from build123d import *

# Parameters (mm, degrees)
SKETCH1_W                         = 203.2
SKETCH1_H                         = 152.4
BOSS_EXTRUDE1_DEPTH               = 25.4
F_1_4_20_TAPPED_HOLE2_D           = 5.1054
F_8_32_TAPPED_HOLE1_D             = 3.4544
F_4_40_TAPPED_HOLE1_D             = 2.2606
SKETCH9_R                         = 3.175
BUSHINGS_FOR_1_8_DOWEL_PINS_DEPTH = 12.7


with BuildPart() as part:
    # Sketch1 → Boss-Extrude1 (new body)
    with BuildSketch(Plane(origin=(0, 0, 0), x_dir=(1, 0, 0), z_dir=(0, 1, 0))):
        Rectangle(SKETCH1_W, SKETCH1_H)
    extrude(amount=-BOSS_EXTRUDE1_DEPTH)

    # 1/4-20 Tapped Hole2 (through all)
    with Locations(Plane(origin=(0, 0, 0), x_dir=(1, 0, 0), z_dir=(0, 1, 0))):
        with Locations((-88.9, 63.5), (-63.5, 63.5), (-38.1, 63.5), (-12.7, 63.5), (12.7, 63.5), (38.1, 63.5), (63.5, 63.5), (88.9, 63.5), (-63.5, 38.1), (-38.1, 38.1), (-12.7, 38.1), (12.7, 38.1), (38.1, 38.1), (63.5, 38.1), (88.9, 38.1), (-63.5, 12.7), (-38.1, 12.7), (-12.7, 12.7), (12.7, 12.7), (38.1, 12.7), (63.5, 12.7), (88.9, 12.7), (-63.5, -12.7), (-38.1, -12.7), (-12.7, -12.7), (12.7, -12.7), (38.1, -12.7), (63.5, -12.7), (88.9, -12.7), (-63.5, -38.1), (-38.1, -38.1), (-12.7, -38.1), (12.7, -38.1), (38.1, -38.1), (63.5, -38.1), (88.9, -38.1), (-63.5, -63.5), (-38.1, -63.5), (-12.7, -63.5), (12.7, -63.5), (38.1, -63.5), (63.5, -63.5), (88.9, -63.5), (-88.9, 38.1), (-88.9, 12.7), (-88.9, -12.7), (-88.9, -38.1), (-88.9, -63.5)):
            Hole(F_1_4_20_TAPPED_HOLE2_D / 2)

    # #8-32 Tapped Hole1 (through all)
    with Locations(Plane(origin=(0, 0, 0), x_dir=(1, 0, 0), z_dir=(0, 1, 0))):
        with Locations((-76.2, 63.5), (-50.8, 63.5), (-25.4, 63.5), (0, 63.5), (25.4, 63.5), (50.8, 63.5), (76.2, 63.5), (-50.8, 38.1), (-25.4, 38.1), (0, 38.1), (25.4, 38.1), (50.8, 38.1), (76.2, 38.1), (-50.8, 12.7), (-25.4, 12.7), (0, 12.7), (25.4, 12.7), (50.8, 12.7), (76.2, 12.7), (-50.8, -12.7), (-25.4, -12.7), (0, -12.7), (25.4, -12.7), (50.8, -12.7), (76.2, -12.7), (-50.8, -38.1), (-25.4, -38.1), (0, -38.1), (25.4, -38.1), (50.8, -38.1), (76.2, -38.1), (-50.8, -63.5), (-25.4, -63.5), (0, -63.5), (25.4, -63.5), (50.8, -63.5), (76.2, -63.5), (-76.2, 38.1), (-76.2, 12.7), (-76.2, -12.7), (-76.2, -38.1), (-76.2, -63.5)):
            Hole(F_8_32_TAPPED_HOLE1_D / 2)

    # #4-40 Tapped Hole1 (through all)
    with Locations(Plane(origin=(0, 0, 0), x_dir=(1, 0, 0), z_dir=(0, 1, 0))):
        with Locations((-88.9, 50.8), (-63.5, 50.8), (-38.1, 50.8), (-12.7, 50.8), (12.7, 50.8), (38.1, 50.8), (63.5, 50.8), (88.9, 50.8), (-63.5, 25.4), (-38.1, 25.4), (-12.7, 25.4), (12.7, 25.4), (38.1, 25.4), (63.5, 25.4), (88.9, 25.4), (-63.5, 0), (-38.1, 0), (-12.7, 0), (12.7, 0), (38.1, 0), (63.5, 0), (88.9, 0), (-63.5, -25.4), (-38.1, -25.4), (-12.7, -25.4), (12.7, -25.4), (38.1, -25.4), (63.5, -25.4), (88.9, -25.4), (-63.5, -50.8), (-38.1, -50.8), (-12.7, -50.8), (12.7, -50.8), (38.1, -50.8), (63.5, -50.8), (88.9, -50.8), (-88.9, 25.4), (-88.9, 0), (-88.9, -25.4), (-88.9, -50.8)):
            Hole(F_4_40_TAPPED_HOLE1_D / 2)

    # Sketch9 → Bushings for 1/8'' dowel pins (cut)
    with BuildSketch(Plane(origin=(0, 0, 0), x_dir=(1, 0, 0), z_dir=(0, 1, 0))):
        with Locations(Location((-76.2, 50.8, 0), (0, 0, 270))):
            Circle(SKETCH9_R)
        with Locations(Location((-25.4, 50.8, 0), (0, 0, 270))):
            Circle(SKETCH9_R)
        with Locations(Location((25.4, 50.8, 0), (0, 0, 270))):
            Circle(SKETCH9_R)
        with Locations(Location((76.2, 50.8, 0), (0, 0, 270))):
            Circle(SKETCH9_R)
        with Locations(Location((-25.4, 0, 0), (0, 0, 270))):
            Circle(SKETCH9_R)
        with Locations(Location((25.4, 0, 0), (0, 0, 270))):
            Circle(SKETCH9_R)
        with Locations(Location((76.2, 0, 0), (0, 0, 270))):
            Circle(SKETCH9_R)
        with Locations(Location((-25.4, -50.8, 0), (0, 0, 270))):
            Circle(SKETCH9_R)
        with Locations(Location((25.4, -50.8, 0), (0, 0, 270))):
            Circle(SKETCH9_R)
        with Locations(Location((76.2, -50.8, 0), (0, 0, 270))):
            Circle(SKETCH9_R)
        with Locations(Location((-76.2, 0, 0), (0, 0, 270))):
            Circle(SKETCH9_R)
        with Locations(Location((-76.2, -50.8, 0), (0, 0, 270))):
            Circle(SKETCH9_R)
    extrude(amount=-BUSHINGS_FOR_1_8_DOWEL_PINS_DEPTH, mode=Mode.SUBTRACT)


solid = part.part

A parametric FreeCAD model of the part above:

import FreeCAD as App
import Part
import Sketcher
from FreeCAD import Vector
Q = App.Units.Quantity


def add_polygon(sketch, points):
    """Adds a closed chain of lines whose ends are joined by coincident constraints."""
    first, n = sketch.GeometryCount, len(points)
    for a, b in zip(points, points[1:] + points[:1]):
        sketch.addGeometry(Part.LineSegment(App.Vector(*a, 0), App.Vector(*b, 0)), False)
    for i in range(n):
        sketch.addConstraint(Sketcher.Constraint("Coincident", first + i, 2, first + (i + 1) % n, 1))

doc = App.newDocument("Part")
body = doc.addObject("PartDesign::Body", "Body")

# Sketch on XZ plane
sketch1 = body.newObject("Sketcher::SketchObject", "Sketch")
sketch1.AttachmentSupport = (doc.getObject("XZ_Plane"), [""])
sketch1.MapMode = "FlatFace"
add_polygon(sketch1, [(-102, -76), (-102, 76), (102, 76), (102, -76)])  # lines 0-3
sketch1.addConstraint([
    Sketcher.Constraint("Vertical", 0),
    Sketcher.Constraint("Horizontal", 1),
    Sketcher.Constraint("Vertical", 2),
    Sketcher.Constraint("Horizontal", 3),
    Sketcher.Constraint("Symmetric", 0, 2, 2, 2, -1, 1),
    Sketcher.Constraint("DistanceX", 1, 1, 1, 2, Q("8 in")),
    Sketcher.Constraint("DistanceY", 0, 1, 0, 2, Q("6 in")),
])
pad1 = body.newObject("PartDesign::Pad", "Pad")
pad1.Profile = sketch1
pad1.Length = Q("1 in")

# Sketch on XZ plane
sketch2 = body.newObject("Sketcher::SketchObject", "Sketch001")
sketch2.AttachmentSupport = (doc.getObject("XZ_Plane"), [""])
sketch2.MapMode = "FlatFace"
sketch2.addGeometry([
    Part.Circle(Vector(-88.9, -63.5, 0), Vector(0, 0, 1), 2.6),  # 0
    Part.Circle(Vector(-63.5, -63.5, 0), Vector(0, 0, 1), 2.6),  # 1
    Part.Circle(Vector(-38.1, -63.5, 0), Vector(0, 0, 1), 2.6),  # 2
    Part.Circle(Vector(-12.7, -63.5, 0), Vector(0, 0, 1), 2.6),  # 3
    Part.Circle(Vector(12.7, -63.5, 0), Vector(0, 0, 1), 2.6),  # 4
    Part.Circle(Vector(38.1, -63.5, 0), Vector(0, 0, 1), 2.6),  # 5
    Part.Circle(Vector(63.5, -63.5, 0), Vector(0, 0, 1), 2.6),  # 6
    Part.Circle(Vector(88.9, -63.5, 0), Vector(0, 0, 1), 2.6),  # 7
    Part.Circle(Vector(-63.5, -38.1, 0), Vector(0, 0, 1), 2.6),  # 8
    Part.Circle(Vector(-38.1, -38.1, 0), Vector(0, 0, 1), 2.6),  # 9
    Part.Circle(Vector(-12.7, -38.1, 0), Vector(0, 0, 1), 2.6),  # 10
    Part.Circle(Vector(12.7, -38.1, 0), Vector(0, 0, 1), 2.6),  # 11
    Part.Circle(Vector(38.1, -38.1, 0), Vector(0, 0, 1), 2.6),  # 12
    Part.Circle(Vector(63.5, -38.1, 0), Vector(0, 0, 1), 2.6),  # 13
    Part.Circle(Vector(88.9, -38.1, 0), Vector(0, 0, 1), 2.6),  # 14
    Part.Circle(Vector(-63.5, -12.7, 0), Vector(0, 0, 1), 2.6),  # 15
    Part.Circle(Vector(-38.1, -12.7, 0), Vector(0, 0, 1), 2.6),  # 16
    Part.Circle(Vector(-12.7, -12.7, 0), Vector(0, 0, 1), 2.6),  # 17
    Part.Circle(Vector(12.7, -12.7, 0), Vector(0, 0, 1), 2.6),  # 18
    Part.Circle(Vector(38.1, -12.7, 0), Vector(0, 0, 1), 2.6),  # 19
    Part.Circle(Vector(63.5, -12.7, 0), Vector(0, 0, 1), 2.6),  # 20
    Part.Circle(Vector(88.9, -12.7, 0), Vector(0, 0, 1), 2.6),  # 21
    Part.Circle(Vector(-63.5, 12.7, 0), Vector(0, 0, 1), 2.6),  # 22
    Part.Circle(Vector(-38.1, 12.7, 0), Vector(0, 0, 1), 2.6),  # 23
    Part.Circle(Vector(-12.7, 12.7, 0), Vector(0, 0, 1), 2.6),  # 24
    Part.Circle(Vector(12.7, 12.7, 0), Vector(0, 0, 1), 2.6),  # 25
    Part.Circle(Vector(38.1, 12.7, 0), Vector(0, 0, 1), 2.6),  # 26
    Part.Circle(Vector(63.5, 12.7, 0), Vector(0, 0, 1), 2.6),  # 27
    Part.Circle(Vector(88.9, 12.7, 0), Vector(0, 0, 1), 2.6),  # 28
    Part.Circle(Vector(-63.5, 38.1, 0), Vector(0, 0, 1), 2.6),  # 29
    Part.Circle(Vector(-38.1, 38.1, 0), Vector(0, 0, 1), 2.6),  # 30
    Part.Circle(Vector(-12.7, 38.1, 0), Vector(0, 0, 1), 2.6),  # 31
    Part.Circle(Vector(12.7, 38.1, 0), Vector(0, 0, 1), 2.6),  # 32
    Part.Circle(Vector(38.1, 38.1, 0), Vector(0, 0, 1), 2.6),  # 33
    Part.Circle(Vector(63.5, 38.1, 0), Vector(0, 0, 1), 2.6),  # 34
    Part.Circle(Vector(88.9, 38.1, 0), Vector(0, 0, 1), 2.6),  # 35
    Part.Circle(Vector(-63.5, 63.5, 0), Vector(0, 0, 1), 2.6),  # 36
    Part.Circle(Vector(-38.1, 63.5, 0), Vector(0, 0, 1), 2.6),  # 37
    Part.Circle(Vector(-12.7, 63.5, 0), Vector(0, 0, 1), 2.6),  # 38
    Part.Circle(Vector(12.7, 63.5, 0), Vector(0, 0, 1), 2.6),  # 39
    Part.Circle(Vector(38.1, 63.5, 0), Vector(0, 0, 1), 2.6),  # 40
    Part.Circle(Vector(63.5, 63.5, 0), Vector(0, 0, 1), 2.6),  # 41
    Part.Circle(Vector(88.9, 63.5, 0), Vector(0, 0, 1), 2.6),  # 42
    Part.Circle(Vector(-88.9, -38.1, 0), Vector(0, 0, 1), 2.6),  # 43
    Part.Circle(Vector(-88.9, -12.7, 0), Vector(0, 0, 1), 2.6),  # 44
    Part.Circle(Vector(-88.9, 12.7, 0), Vector(0, 0, 1), 2.6),  # 45
    Part.Circle(Vector(-88.9, 38.1, 0), Vector(0, 0, 1), 2.6),  # 46
    Part.Circle(Vector(-88.9, 63.5, 0), Vector(0, 0, 1), 2.6),  # 47
], False)
sketch2.addConstraint([
    Sketcher.Constraint("Equal", 0, 1),
    Sketcher.Constraint("Equal", 1, 2),
    Sketcher.Constraint("Equal", 2, 3),
    Sketcher.Constraint("Equal", 3, 4),
    Sketcher.Constraint("Equal", 4, 5),
    Sketcher.Constraint("Equal", 5, 6),
    Sketcher.Constraint("Equal", 6, 7),
    Sketcher.Constraint("Equal", 7, 8),
    Sketcher.Constraint("Equal", 8, 9),
    Sketcher.Constraint("Equal", 9, 10),
    Sketcher.Constraint("Equal", 10, 11),
    Sketcher.Constraint("Equal", 11, 12),
    Sketcher.Constraint("Equal", 12, 13),
    Sketcher.Constraint("Equal", 13, 14),
    Sketcher.Constraint("Equal", 14, 15),
    Sketcher.Constraint("Equal", 15, 16),
    Sketcher.Constraint("Equal", 16, 17),
    Sketcher.Constraint("Equal", 17, 18),
    Sketcher.Constraint("Equal", 18, 19),
    Sketcher.Constraint("Equal", 19, 20),
    Sketcher.Constraint("Equal", 20, 21),
    Sketcher.Constraint("Equal", 21, 22),
    Sketcher.Constraint("Equal", 22, 23),
    Sketcher.Constraint("Equal", 23, 24),
    Sketcher.Constraint("Equal", 24, 25),
    Sketcher.Constraint("Equal", 25, 26),
    Sketcher.Constraint("Equal", 26, 27),
    Sketcher.Constraint("Equal", 27, 28),
    Sketcher.Constraint("Equal", 28, 29),
    Sketcher.Constraint("Equal", 29, 30),
    Sketcher.Constraint("Equal", 30, 31),
    Sketcher.Constraint("Equal", 31, 32),
    Sketcher.Constraint("Equal", 32, 33),
    Sketcher.Constraint("Equal", 33, 34),
    Sketcher.Constraint("Equal", 34, 35),
    Sketcher.Constraint("Equal", 35, 36),
    Sketcher.Constraint("Equal", 36, 37),
    Sketcher.Constraint("Equal", 37, 38),
    Sketcher.Constraint("Equal", 38, 39),
    Sketcher.Constraint("Equal", 39, 40),
    Sketcher.Constraint("Equal", 40, 41),
    Sketcher.Constraint("Equal", 41, 42),
    Sketcher.Constraint("Equal", 42, 43),
    Sketcher.Constraint("Equal", 43, 44),
    Sketcher.Constraint("Equal", 44, 45),
    Sketcher.Constraint("Equal", 45, 46),
    Sketcher.Constraint("Equal", 46, 47),
    Sketcher.Constraint("Symmetric", 20, 3, 22, 3, -1, 1),
    Sketcher.Constraint("Symmetric", 19, 3, 23, 3, -1, 1),
    Sketcher.Constraint("Symmetric", 18, 3, 24, 3, -1, 1),
    Sketcher.Constraint("Symmetric", 17, 3, 25, 3, -1, 1),
    Sketcher.Constraint("Symmetric", 16, 3, 26, 3, -1, 1),
    Sketcher.Constraint("Symmetric", 15, 3, 27, 3, -1, 1),
    Sketcher.Constraint("Symmetric", 13, 3, 29, 3, -1, 1),
    Sketcher.Constraint("Symmetric", 12, 3, 30, 3, -1, 1),
    Sketcher.Constraint("Symmetric", 11, 3, 31, 3, -1, 1),
    Sketcher.Constraint("Symmetric", 10, 3, 32, 3, -1, 1),
    Sketcher.Constraint("Symmetric", 9, 3, 33, 3, -1, 1),
    Sketcher.Constraint("Symmetric", 8, 3, 34, 3, -1, 1),
    Sketcher.Constraint("Symmetric", 6, 3, 36, 3, -1, 1),
    Sketcher.Constraint("Symmetric", 5, 3, 37, 3, -1, 1),
    Sketcher.Constraint("Symmetric", 4, 3, 38, 3, -1, 1),
    Sketcher.Constraint("Symmetric", 3, 3, 39, 3, -1, 1),
    Sketcher.Constraint("Symmetric", 2, 3, 40, 3, -1, 1),
    Sketcher.Constraint("Symmetric", 1, 3, 41, 3, -1, 1),
    Sketcher.Constraint("Symmetric", 0, 3, 42, 3, -1, 1),
    Sketcher.Constraint("Symmetric", 35, 3, 43, 3, -1, 1),
    Sketcher.Constraint("Symmetric", 28, 3, 44, 3, -1, 1),
    Sketcher.Constraint("Symmetric", 21, 3, 45, 3, -1, 1),
    Sketcher.Constraint("Symmetric", 14, 3, 46, 3, -1, 1),
    Sketcher.Constraint("Symmetric", 7, 3, 47, 3, -1, 1),
    Sketcher.Constraint("Symmetric", 3, 3, 4, 3, -2),
    Sketcher.Constraint("Symmetric", 2, 3, 5, 3, -2),
    Sketcher.Constraint("Symmetric", 1, 3, 6, 3, -2),
    Sketcher.Constraint("Symmetric", 0, 3, 7, 3, -2),
    Sketcher.Constraint("Symmetric", 10, 3, 11, 3, -2),
    Sketcher.Constraint("Symmetric", 9, 3, 12, 3, -2),
    Sketcher.Constraint("Symmetric", 8, 3, 13, 3, -2),
    Sketcher.Constraint("Symmetric", 17, 3, 18, 3, -2),
    Sketcher.Constraint("Symmetric", 16, 3, 19, 3, -2),
    Sketcher.Constraint("Symmetric", 15, 3, 20, 3, -2),
    Sketcher.Constraint("Symmetric", 14, 3, 43, 3, -2),
    Sketcher.Constraint("Symmetric", 21, 3, 44, 3, -2),
    Sketcher.Constraint("Horizontal", 0, 3, 1, 3),
    Sketcher.Constraint("Horizontal", 1, 3, 2, 3),
    Sketcher.Constraint("Horizontal", 2, 3, 3, 3),
    Sketcher.Constraint("Horizontal", 8, 3, 9, 3),
    Sketcher.Constraint("Horizontal", 9, 3, 10, 3),
    Sketcher.Constraint("Horizontal", 13, 3, 14, 3),
    Sketcher.Constraint("Horizontal", 15, 3, 16, 3),
    Sketcher.Constraint("Horizontal", 16, 3, 17, 3),
    Sketcher.Constraint("Horizontal", 20, 3, 21, 3),
    Sketcher.Constraint("Vertical", 1, 3, 8, 3),
    Sketcher.Constraint("Vertical", 2, 3, 9, 3),
    Sketcher.Constraint("Vertical", 3, 3, 10, 3),
    Sketcher.Constraint("Vertical", 7, 3, 14, 3),
    Sketcher.Constraint("Vertical", 8, 3, 15, 3),
    Sketcher.Constraint("Vertical", 9, 3, 16, 3),
    Sketcher.Constraint("Vertical", 10, 3, 17, 3),
    Sketcher.Constraint("Vertical", 14, 3, 21, 3),
    Sketcher.Constraint("Diameter", 0, Q("0.201 in")),
    Sketcher.Constraint("DistanceX", 0, 3, 1, 3, Q("1 in")),
    Sketcher.Constraint("DistanceX", 1, 3, 2, 3, Q("1 in")),
    Sketcher.Constraint("DistanceX", 2, 3, 3, 3, Q("1 in")),
    Sketcher.Constraint("DistanceX", 3, 3, 4, 3, Q("1 in")),
    Sketcher.Constraint("DistanceY", 1, 3, 8, 3, Q("1 in")),
    Sketcher.Constraint("DistanceY", 8, 3, 15, 3, Q("1 in")),
    Sketcher.Constraint("DistanceY", 15, 3, 22, 3, Q("1 in")),
])
doc.recompute()
hole = body.newObject("PartDesign::Hole", "Hole")
hole.Profile = sketch2
hole.ThreadType = "None"
hole.Diameter = Q("0.201 in")
hole.DepthType = "ThroughAll"
hole.Reversed = True

# Sketch on XZ plane
sketch3 = body.newObject("Sketcher::SketchObject", "Sketch002")
sketch3.AttachmentSupport = (doc.getObject("XZ_Plane"), [""])
sketch3.MapMode = "FlatFace"
sketch3.addGeometry([
    Part.Circle(Vector(-76.2, -63.5, 0), Vector(0, 0, 1), 1.7),  # 0
    Part.Circle(Vector(-50.8, -63.5, 0), Vector(0, 0, 1), 1.7),  # 1
    Part.Circle(Vector(-25.4, -63.5, 0), Vector(0, 0, 1), 1.7),  # 2
    Part.Circle(Vector(0, -63.5, 0), Vector(0, 0, 1), 1.7),  # 3
    Part.Circle(Vector(25.4, -63.5, 0), Vector(0, 0, 1), 1.7),  # 4
    Part.Circle(Vector(50.8, -63.5, 0), Vector(0, 0, 1), 1.7),  # 5
    Part.Circle(Vector(76.2, -63.5, 0), Vector(0, 0, 1), 1.7),  # 6
    Part.Circle(Vector(-50.8, -38.1, 0), Vector(0, 0, 1), 1.7),  # 7
    Part.Circle(Vector(-25.4, -38.1, 0), Vector(0, 0, 1), 1.7),  # 8
    Part.Circle(Vector(0, -38.1, 0), Vector(0, 0, 1), 1.7),  # 9
    Part.Circle(Vector(25.4, -38.1, 0), Vector(0, 0, 1), 1.7),  # 10
    Part.Circle(Vector(50.8, -38.1, 0), Vector(0, 0, 1), 1.7),  # 11
    Part.Circle(Vector(76.2, -38.1, 0), Vector(0, 0, 1), 1.7),  # 12
    Part.Circle(Vector(-50.8, -12.7, 0), Vector(0, 0, 1), 1.7),  # 13
    Part.Circle(Vector(-25.4, -12.7, 0), Vector(0, 0, 1), 1.7),  # 14
    Part.Circle(Vector(0, -12.7, 0), Vector(0, 0, 1), 1.7),  # 15
    Part.Circle(Vector(25.4, -12.7, 0), Vector(0, 0, 1), 1.7),  # 16
    Part.Circle(Vector(50.8, -12.7, 0), Vector(0, 0, 1), 1.7),  # 17
    Part.Circle(Vector(76.2, -12.7, 0), Vector(0, 0, 1), 1.7),  # 18
    Part.Circle(Vector(-50.8, 12.7, 0), Vector(0, 0, 1), 1.7),  # 19
    Part.Circle(Vector(-25.4, 12.7, 0), Vector(0, 0, 1), 1.7),  # 20
    Part.Circle(Vector(0, 12.7, 0), Vector(0, 0, 1), 1.7),  # 21
    Part.Circle(Vector(25.4, 12.7, 0), Vector(0, 0, 1), 1.7),  # 22
    Part.Circle(Vector(50.8, 12.7, 0), Vector(0, 0, 1), 1.7),  # 23
    Part.Circle(Vector(76.2, 12.7, 0), Vector(0, 0, 1), 1.7),  # 24
    Part.Circle(Vector(-50.8, 38.1, 0), Vector(0, 0, 1), 1.7),  # 25
    Part.Circle(Vector(-25.4, 38.1, 0), Vector(0, 0, 1), 1.7),  # 26
    Part.Circle(Vector(0, 38.1, 0), Vector(0, 0, 1), 1.7),  # 27
    Part.Circle(Vector(25.4, 38.1, 0), Vector(0, 0, 1), 1.7),  # 28
    Part.Circle(Vector(50.8, 38.1, 0), Vector(0, 0, 1), 1.7),  # 29
    Part.Circle(Vector(76.2, 38.1, 0), Vector(0, 0, 1), 1.7),  # 30
    Part.Circle(Vector(-50.8, 63.5, 0), Vector(0, 0, 1), 1.7),  # 31
    Part.Circle(Vector(-25.4, 63.5, 0), Vector(0, 0, 1), 1.7),  # 32
    Part.Circle(Vector(0, 63.5, 0), Vector(0, 0, 1), 1.7),  # 33
    Part.Circle(Vector(25.4, 63.5, 0), Vector(0, 0, 1), 1.7),  # 34
    Part.Circle(Vector(50.8, 63.5, 0), Vector(0, 0, 1), 1.7),  # 35
    Part.Circle(Vector(76.2, 63.5, 0), Vector(0, 0, 1), 1.7),  # 36
    Part.Circle(Vector(-76.2, -38.1, 0), Vector(0, 0, 1), 1.7),  # 37
    Part.Circle(Vector(-76.2, -12.7, 0), Vector(0, 0, 1), 1.7),  # 38
    Part.Circle(Vector(-76.2, 12.7, 0), Vector(0, 0, 1), 1.7),  # 39
    Part.Circle(Vector(-76.2, 38.1, 0), Vector(0, 0, 1), 1.7),  # 40
    Part.Circle(Vector(-76.2, 63.5, 0), Vector(0, 0, 1), 1.7),  # 41
], False)
sketch3.addConstraint([
    Sketcher.Constraint("Equal", 0, 1),
    Sketcher.Constraint("Equal", 1, 2),
    Sketcher.Constraint("Equal", 2, 3),
    Sketcher.Constraint("Equal", 3, 4),
    Sketcher.Constraint("Equal", 4, 5),
    Sketcher.Constraint("Equal", 5, 6),
    Sketcher.Constraint("Equal", 6, 7),
    Sketcher.Constraint("Equal", 7, 8),
    Sketcher.Constraint("Equal", 8, 9),
    Sketcher.Constraint("Equal", 9, 10),
    Sketcher.Constraint("Equal", 10, 11),
    Sketcher.Constraint("Equal", 11, 12),
    Sketcher.Constraint("Equal", 12, 13),
    Sketcher.Constraint("Equal", 13, 14),
    Sketcher.Constraint("Equal", 14, 15),
    Sketcher.Constraint("Equal", 15, 16),
    Sketcher.Constraint("Equal", 16, 17),
    Sketcher.Constraint("Equal", 17, 18),
    Sketcher.Constraint("Equal", 18, 19),
    Sketcher.Constraint("Equal", 19, 20),
    Sketcher.Constraint("Equal", 20, 21),
    Sketcher.Constraint("Equal", 21, 22),
    Sketcher.Constraint("Equal", 22, 23),
    Sketcher.Constraint("Equal", 23, 24),
    Sketcher.Constraint("Equal", 24, 25),
    Sketcher.Constraint("Equal", 25, 26),
    Sketcher.Constraint("Equal", 26, 27),
    Sketcher.Constraint("Equal", 27, 28),
    Sketcher.Constraint("Equal", 28, 29),
    Sketcher.Constraint("Equal", 29, 30),
    Sketcher.Constraint("Equal", 30, 31),
    Sketcher.Constraint("Equal", 31, 32),
    Sketcher.Constraint("Equal", 32, 33),
    Sketcher.Constraint("Equal", 33, 34),
    Sketcher.Constraint("Equal", 34, 35),
    Sketcher.Constraint("Equal", 35, 36),
    Sketcher.Constraint("Equal", 36, 37),
    Sketcher.Constraint("Equal", 37, 38),
    Sketcher.Constraint("Equal", 38, 39),
    Sketcher.Constraint("Equal", 39, 40),
    Sketcher.Constraint("Equal", 40, 41),
    Sketcher.Constraint("Symmetric", 17, 3, 19, 3, -1, 1),
    Sketcher.Constraint("Symmetric", 16, 3, 20, 3, -1, 1),
    Sketcher.Constraint("Symmetric", 15, 3, 21, 3, -1, 1),
    Sketcher.Constraint("Symmetric", 14, 3, 22, 3, -1, 1),
    Sketcher.Constraint("Symmetric", 13, 3, 23, 3, -1, 1),
    Sketcher.Constraint("Symmetric", 11, 3, 25, 3, -1, 1),
    Sketcher.Constraint("Symmetric", 10, 3, 26, 3, -1, 1),
    Sketcher.Constraint("Symmetric", 9, 3, 27, 3, -1, 1),
    Sketcher.Constraint("Symmetric", 8, 3, 28, 3, -1, 1),
    Sketcher.Constraint("Symmetric", 7, 3, 29, 3, -1, 1),
    Sketcher.Constraint("Symmetric", 5, 3, 31, 3, -1, 1),
    Sketcher.Constraint("Symmetric", 4, 3, 32, 3, -1, 1),
    Sketcher.Constraint("Symmetric", 3, 3, 33, 3, -1, 1),
    Sketcher.Constraint("Symmetric", 2, 3, 34, 3, -1, 1),
    Sketcher.Constraint("Symmetric", 1, 3, 35, 3, -1, 1),
    Sketcher.Constraint("Symmetric", 0, 3, 36, 3, -1, 1),
    Sketcher.Constraint("Symmetric", 30, 3, 37, 3, -1, 1),
    Sketcher.Constraint("Symmetric", 24, 3, 38, 3, -1, 1),
    Sketcher.Constraint("Symmetric", 18, 3, 39, 3, -1, 1),
    Sketcher.Constraint("Symmetric", 12, 3, 40, 3, -1, 1),
    Sketcher.Constraint("Symmetric", 6, 3, 41, 3, -1, 1),
    Sketcher.Constraint("Symmetric", 2, 3, 4, 3, -2),
    Sketcher.Constraint("Symmetric", 1, 3, 5, 3, -2),
    Sketcher.Constraint("Symmetric", 0, 3, 6, 3, -2),
    Sketcher.Constraint("Symmetric", 8, 3, 10, 3, -2),
    Sketcher.Constraint("Symmetric", 7, 3, 11, 3, -2),
    Sketcher.Constraint("Symmetric", 14, 3, 16, 3, -2),
    Sketcher.Constraint("Symmetric", 13, 3, 17, 3, -2),
    Sketcher.Constraint("Symmetric", 12, 3, 37, 3, -2),
    Sketcher.Constraint("Symmetric", 18, 3, 38, 3, -2),
    Sketcher.Constraint("PointOnObject", 3, 3, -2),
    Sketcher.Constraint("PointOnObject", 9, 3, -2),
    Sketcher.Constraint("PointOnObject", 15, 3, -2),
    Sketcher.Constraint("Horizontal", 0, 3, 1, 3),
    Sketcher.Constraint("Horizontal", 1, 3, 2, 3),
    Sketcher.Constraint("Horizontal", 2, 3, 3, 3),
    Sketcher.Constraint("Horizontal", 7, 3, 8, 3),
    Sketcher.Constraint("Horizontal", 8, 3, 9, 3),
    Sketcher.Constraint("Horizontal", 11, 3, 12, 3),
    Sketcher.Constraint("Horizontal", 13, 3, 14, 3),
    Sketcher.Constraint("Horizontal", 14, 3, 15, 3),
    Sketcher.Constraint("Horizontal", 17, 3, 18, 3),
    Sketcher.Constraint("Vertical", 1, 3, 7, 3),
    Sketcher.Constraint("Vertical", 2, 3, 8, 3),
    Sketcher.Constraint("Vertical", 6, 3, 12, 3),
    Sketcher.Constraint("Vertical", 7, 3, 13, 3),
    Sketcher.Constraint("Vertical", 8, 3, 14, 3),
    Sketcher.Constraint("Vertical", 12, 3, 18, 3),
    Sketcher.Constraint("Diameter", 0, Q("0.136 in")),
    Sketcher.Constraint("DistanceX", 0, 3, -1, 1, Q("3 in")),
    Sketcher.Constraint("DistanceX", 1, 3, -1, 1, Q("2 in")),
    Sketcher.Constraint("DistanceX", 2, 3, -1, 1, Q("1 in")),
    Sketcher.Constraint("DistanceY", 1, 3, 7, 3, Q("1 in")),
    Sketcher.Constraint("DistanceY", 7, 3, 13, 3, Q("1 in")),
    Sketcher.Constraint("DistanceY", 13, 3, 19, 3, Q("1 in")),
])
doc.recompute()
hole2 = body.newObject("PartDesign::Hole", "Hole001")
hole2.Profile = sketch3
hole2.ThreadType = "None"
hole2.Diameter = Q("0.136 in")
hole2.DepthType = "ThroughAll"
hole2.Reversed = True

# Sketch on XZ plane
sketch4 = body.newObject("Sketcher::SketchObject", "Sketch003")
sketch4.AttachmentSupport = (doc.getObject("XZ_Plane"), [""])
sketch4.MapMode = "FlatFace"
sketch4.addGeometry([
    Part.Circle(Vector(-88.9, -50.8, 0), Vector(0, 0, 1), 1.1),  # 0
    Part.Circle(Vector(-63.5, -50.8, 0), Vector(0, 0, 1), 1.1),  # 1
    Part.Circle(Vector(-38.1, -50.8, 0), Vector(0, 0, 1), 1.1),  # 2
    Part.Circle(Vector(-12.7, -50.8, 0), Vector(0, 0, 1), 1.1),  # 3
    Part.Circle(Vector(12.7, -50.8, 0), Vector(0, 0, 1), 1.1),  # 4
    Part.Circle(Vector(38.1, -50.8, 0), Vector(0, 0, 1), 1.1),  # 5
    Part.Circle(Vector(63.5, -50.8, 0), Vector(0, 0, 1), 1.1),  # 6
    Part.Circle(Vector(88.9, -50.8, 0), Vector(0, 0, 1), 1.1),  # 7
    Part.Circle(Vector(-63.5, -25.4, 0), Vector(0, 0, 1), 1.1),  # 8
    Part.Circle(Vector(-38.1, -25.4, 0), Vector(0, 0, 1), 1.1),  # 9
    Part.Circle(Vector(-12.7, -25.4, 0), Vector(0, 0, 1), 1.1),  # 10
    Part.Circle(Vector(12.7, -25.4, 0), Vector(0, 0, 1), 1.1),  # 11
    Part.Circle(Vector(38.1, -25.4, 0), Vector(0, 0, 1), 1.1),  # 12
    Part.Circle(Vector(63.5, -25.4, 0), Vector(0, 0, 1), 1.1),  # 13
    Part.Circle(Vector(88.9, -25.4, 0), Vector(0, 0, 1), 1.1),  # 14
    Part.Circle(Vector(-63.5, 0, 0), Vector(0, 0, 1), 1.1),  # 15
    Part.Circle(Vector(-38.1, 0, 0), Vector(0, 0, 1), 1.1),  # 16
    Part.Circle(Vector(-12.7, 0, 0), Vector(0, 0, 1), 1.1),  # 17
    Part.Circle(Vector(12.7, 0, 0), Vector(0, 0, 1), 1.1),  # 18
    Part.Circle(Vector(38.1, 0, 0), Vector(0, 0, 1), 1.1),  # 19
    Part.Circle(Vector(63.5, 0, 0), Vector(0, 0, 1), 1.1),  # 20
    Part.Circle(Vector(88.9, 0, 0), Vector(0, 0, 1), 1.1),  # 21
    Part.Circle(Vector(-63.5, 25.4, 0), Vector(0, 0, 1), 1.1),  # 22
    Part.Circle(Vector(-38.1, 25.4, 0), Vector(0, 0, 1), 1.1),  # 23
    Part.Circle(Vector(-12.7, 25.4, 0), Vector(0, 0, 1), 1.1),  # 24
    Part.Circle(Vector(12.7, 25.4, 0), Vector(0, 0, 1), 1.1),  # 25
    Part.Circle(Vector(38.1, 25.4, 0), Vector(0, 0, 1), 1.1),  # 26
    Part.Circle(Vector(63.5, 25.4, 0), Vector(0, 0, 1), 1.1),  # 27
    Part.Circle(Vector(88.9, 25.4, 0), Vector(0, 0, 1), 1.1),  # 28
    Part.Circle(Vector(-63.5, 50.8, 0), Vector(0, 0, 1), 1.1),  # 29
    Part.Circle(Vector(-38.1, 50.8, 0), Vector(0, 0, 1), 1.1),  # 30
    Part.Circle(Vector(-12.7, 50.8, 0), Vector(0, 0, 1), 1.1),  # 31
    Part.Circle(Vector(12.7, 50.8, 0), Vector(0, 0, 1), 1.1),  # 32
    Part.Circle(Vector(38.1, 50.8, 0), Vector(0, 0, 1), 1.1),  # 33
    Part.Circle(Vector(63.5, 50.8, 0), Vector(0, 0, 1), 1.1),  # 34
    Part.Circle(Vector(88.9, 50.8, 0), Vector(0, 0, 1), 1.1),  # 35
    Part.Circle(Vector(-88.9, -25.4, 0), Vector(0, 0, 1), 1.1),  # 36
    Part.Circle(Vector(-88.9, 0, 0), Vector(0, 0, 1), 1.1),  # 37
    Part.Circle(Vector(-88.9, 25.4, 0), Vector(0, 0, 1), 1.1),  # 38
    Part.Circle(Vector(-88.9, 50.8, 0), Vector(0, 0, 1), 1.1),  # 39
], False)
sketch4.addConstraint([
    Sketcher.Constraint("Equal", 0, 1),
    Sketcher.Constraint("Equal", 1, 2),
    Sketcher.Constraint("Equal", 2, 3),
    Sketcher.Constraint("Equal", 3, 4),
    Sketcher.Constraint("Equal", 4, 5),
    Sketcher.Constraint("Equal", 5, 6),
    Sketcher.Constraint("Equal", 6, 7),
    Sketcher.Constraint("Equal", 7, 8),
    Sketcher.Constraint("Equal", 8, 9),
    Sketcher.Constraint("Equal", 9, 10),
    Sketcher.Constraint("Equal", 10, 11),
    Sketcher.Constraint("Equal", 11, 12),
    Sketcher.Constraint("Equal", 12, 13),
    Sketcher.Constraint("Equal", 13, 14),
    Sketcher.Constraint("Equal", 14, 15),
    Sketcher.Constraint("Equal", 15, 16),
    Sketcher.Constraint("Equal", 16, 17),
    Sketcher.Constraint("Equal", 17, 18),
    Sketcher.Constraint("Equal", 18, 19),
    Sketcher.Constraint("Equal", 19, 20),
    Sketcher.Constraint("Equal", 20, 21),
    Sketcher.Constraint("Equal", 21, 22),
    Sketcher.Constraint("Equal", 22, 23),
    Sketcher.Constraint("Equal", 23, 24),
    Sketcher.Constraint("Equal", 24, 25),
    Sketcher.Constraint("Equal", 25, 26),
    Sketcher.Constraint("Equal", 26, 27),
    Sketcher.Constraint("Equal", 27, 28),
    Sketcher.Constraint("Equal", 28, 29),
    Sketcher.Constraint("Equal", 29, 30),
    Sketcher.Constraint("Equal", 30, 31),
    Sketcher.Constraint("Equal", 31, 32),
    Sketcher.Constraint("Equal", 32, 33),
    Sketcher.Constraint("Equal", 33, 34),
    Sketcher.Constraint("Equal", 34, 35),
    Sketcher.Constraint("Equal", 35, 36),
    Sketcher.Constraint("Equal", 36, 37),
    Sketcher.Constraint("Equal", 37, 38),
    Sketcher.Constraint("Equal", 38, 39),
    Sketcher.Constraint("Symmetric", 17, 3, 18, 3, -1, 1),
    Sketcher.Constraint("Symmetric", 16, 3, 19, 3, -1, 1),
    Sketcher.Constraint("Symmetric", 15, 3, 20, 3, -1, 1),
    Sketcher.Constraint("Symmetric", 13, 3, 22, 3, -1, 1),
    Sketcher.Constraint("Symmetric", 12, 3, 23, 3, -1, 1),
    Sketcher.Constraint("Symmetric", 11, 3, 24, 3, -1, 1),
    Sketcher.Constraint("Symmetric", 10, 3, 25, 3, -1, 1),
    Sketcher.Constraint("Symmetric", 9, 3, 26, 3, -1, 1),
    Sketcher.Constraint("Symmetric", 8, 3, 27, 3, -1, 1),
    Sketcher.Constraint("Symmetric", 6, 3, 29, 3, -1, 1),
    Sketcher.Constraint("Symmetric", 5, 3, 30, 3, -1, 1),
    Sketcher.Constraint("Symmetric", 4, 3, 31, 3, -1, 1),
    Sketcher.Constraint("Symmetric", 3, 3, 32, 3, -1, 1),
    Sketcher.Constraint("Symmetric", 2, 3, 33, 3, -1, 1),
    Sketcher.Constraint("Symmetric", 1, 3, 34, 3, -1, 1),
    Sketcher.Constraint("Symmetric", 0, 3, 35, 3, -1, 1),
    Sketcher.Constraint("Symmetric", 28, 3, 36, 3, -1, 1),
    Sketcher.Constraint("Symmetric", 21, 3, 37, 3, -1, 1),
    Sketcher.Constraint("Symmetric", 14, 3, 38, 3, -1, 1),
    Sketcher.Constraint("Symmetric", 7, 3, 39, 3, -1, 1),
    Sketcher.Constraint("Symmetric", 3, 3, 4, 3, -2),
    Sketcher.Constraint("Symmetric", 2, 3, 5, 3, -2),
    Sketcher.Constraint("Symmetric", 1, 3, 6, 3, -2),
    Sketcher.Constraint("Symmetric", 0, 3, 7, 3, -2),
    Sketcher.Constraint("Symmetric", 10, 3, 11, 3, -2),
    Sketcher.Constraint("Symmetric", 9, 3, 12, 3, -2),
    Sketcher.Constraint("Symmetric", 8, 3, 13, 3, -2),
    Sketcher.Constraint("Symmetric", 14, 3, 36, 3, -2),
    Sketcher.Constraint("PointOnObject", 15, 3, -1),
    Sketcher.Constraint("PointOnObject", 16, 3, -1),
    Sketcher.Constraint("PointOnObject", 17, 3, -1),
    Sketcher.Constraint("PointOnObject", 21, 3, -1),
    Sketcher.Constraint("Horizontal", 0, 3, 1, 3),
    Sketcher.Constraint("Horizontal", 1, 3, 2, 3),
    Sketcher.Constraint("Horizontal", 2, 3, 3, 3),
    Sketcher.Constraint("Horizontal", 8, 3, 9, 3),
    Sketcher.Constraint("Horizontal", 9, 3, 10, 3),
    Sketcher.Constraint("Horizontal", 13, 3, 14, 3),
    Sketcher.Constraint("Vertical", 1, 3, 8, 3),
    Sketcher.Constraint("Vertical", 2, 3, 9, 3),
    Sketcher.Constraint("Vertical", 3, 3, 10, 3),
    Sketcher.Constraint("Vertical", 7, 3, 14, 3),
    Sketcher.Constraint("Vertical", 8, 3, 15, 3),
    Sketcher.Constraint("Vertical", 9, 3, 16, 3),
    Sketcher.Constraint("Vertical", 10, 3, 17, 3),
    Sketcher.Constraint("Vertical", 14, 3, 21, 3),
    Sketcher.Constraint("Diameter", 0, Q("0.089 in")),
    Sketcher.Constraint("DistanceY", 0, 3, -1, 1, Q("2 in")),
    Sketcher.Constraint("DistanceY", 8, 3, -1, 1, Q("1 in")),
    Sketcher.Constraint("DistanceX", 0, 3, 1, 3, Q("1 in")),
    Sketcher.Constraint("DistanceX", 1, 3, 2, 3, Q("1 in")),
    Sketcher.Constraint("DistanceX", 2, 3, 3, 3, Q("1 in")),
    Sketcher.Constraint("DistanceX", 3, 3, 4, 3, Q("1 in")),
])
doc.recompute()
hole3 = body.newObject("PartDesign::Hole", "Hole002")
hole3.Profile = sketch4
hole3.ThreadType = "None"
hole3.Diameter = Q("0.089 in")
hole3.DepthType = "ThroughAll"
hole3.Reversed = True

# Sketch on XZ plane
sketch5 = body.newObject("Sketcher::SketchObject", "Sketch004")
sketch5.AttachmentSupport = (doc.getObject("XZ_Plane"), [""])
sketch5.MapMode = "FlatFace"
sketch5.addGeometry([
    Part.Circle(Vector(-76.2, -50.8, 0), Vector(0, 0, 1), 3.2),  # 0
    Part.Circle(Vector(-25.4, -50.8, 0), Vector(0, 0, 1), 3.2),  # 1
    Part.Circle(Vector(25.4, -50.8, 0), Vector(0, 0, 1), 3.2),  # 2
    Part.Circle(Vector(76.2, -50.8, 0), Vector(0, 0, 1), 3.2),  # 3
    Part.Circle(Vector(-25.4, 0, 0), Vector(0, 0, 1), 3.2),  # 4
    Part.Circle(Vector(25.4, 0, 0), Vector(0, 0, 1), 3.2),  # 5
    Part.Circle(Vector(76.2, 0, 0), Vector(0, 0, 1), 3.2),  # 6
    Part.Circle(Vector(-25.4, 50.8, 0), Vector(0, 0, 1), 3.2),  # 7
    Part.Circle(Vector(25.4, 50.8, 0), Vector(0, 0, 1), 3.2),  # 8
    Part.Circle(Vector(76.2, 50.8, 0), Vector(0, 0, 1), 3.2),  # 9
    Part.Circle(Vector(-76.2, 0, 0), Vector(0, 0, 1), 3.2),  # 10
    Part.Circle(Vector(-76.2, 50.8, 0), Vector(0, 0, 1), 3.2),  # 11
], False)
sketch5.addConstraint([
    Sketcher.Constraint("Equal", 0, 1),
    Sketcher.Constraint("Equal", 1, 2),
    Sketcher.Constraint("Equal", 2, 3),
    Sketcher.Constraint("Equal", 3, 4),
    Sketcher.Constraint("Equal", 4, 5),
    Sketcher.Constraint("Equal", 5, 6),
    Sketcher.Constraint("Equal", 6, 7),
    Sketcher.Constraint("Equal", 7, 8),
    Sketcher.Constraint("Equal", 8, 9),
    Sketcher.Constraint("Equal", 9, 10),
    Sketcher.Constraint("Equal", 10, 11),
    Sketcher.Constraint("Symmetric", 4, 3, 5, 3, -1, 1),
    Sketcher.Constraint("Symmetric", 2, 3, 7, 3, -1, 1),
    Sketcher.Constraint("Symmetric", 1, 3, 8, 3, -1, 1),
    Sketcher.Constraint("Symmetric", 0, 3, 9, 3, -1, 1),
    Sketcher.Constraint("Symmetric", 6, 3, 10, 3, -1, 1),
    Sketcher.Constraint("Symmetric", 3, 3, 11, 3, -1, 1),
    Sketcher.Constraint("Symmetric", 1, 3, 2, 3, -2),
    Sketcher.Constraint("Symmetric", 0, 3, 3, 3, -2),
    Sketcher.Constraint("PointOnObject", 4, 3, -1),
    Sketcher.Constraint("PointOnObject", 6, 3, -1),
    Sketcher.Constraint("Horizontal", 0, 3, 1, 3),
    Sketcher.Constraint("Vertical", 1, 3, 4, 3),
    Sketcher.Constraint("Vertical", 3, 3, 6, 3),
    Sketcher.Constraint("Diameter", 0, Q("0.25 in")),
    Sketcher.Constraint("DistanceX", 0, 3, -1, 1, Q("3 in")),
    Sketcher.Constraint("DistanceY", 0, 3, -1, 1, Q("2 in")),
    Sketcher.Constraint("DistanceX", 1, 3, -1, 1, Q("1 in")),
])
pocket1 = body.newObject("PartDesign::Pocket", "Pocket")
pocket1.Profile = sketch5
pocket1.Length = Q("0.5 in")
pocket1.Reversed = True

doc.recompute()
